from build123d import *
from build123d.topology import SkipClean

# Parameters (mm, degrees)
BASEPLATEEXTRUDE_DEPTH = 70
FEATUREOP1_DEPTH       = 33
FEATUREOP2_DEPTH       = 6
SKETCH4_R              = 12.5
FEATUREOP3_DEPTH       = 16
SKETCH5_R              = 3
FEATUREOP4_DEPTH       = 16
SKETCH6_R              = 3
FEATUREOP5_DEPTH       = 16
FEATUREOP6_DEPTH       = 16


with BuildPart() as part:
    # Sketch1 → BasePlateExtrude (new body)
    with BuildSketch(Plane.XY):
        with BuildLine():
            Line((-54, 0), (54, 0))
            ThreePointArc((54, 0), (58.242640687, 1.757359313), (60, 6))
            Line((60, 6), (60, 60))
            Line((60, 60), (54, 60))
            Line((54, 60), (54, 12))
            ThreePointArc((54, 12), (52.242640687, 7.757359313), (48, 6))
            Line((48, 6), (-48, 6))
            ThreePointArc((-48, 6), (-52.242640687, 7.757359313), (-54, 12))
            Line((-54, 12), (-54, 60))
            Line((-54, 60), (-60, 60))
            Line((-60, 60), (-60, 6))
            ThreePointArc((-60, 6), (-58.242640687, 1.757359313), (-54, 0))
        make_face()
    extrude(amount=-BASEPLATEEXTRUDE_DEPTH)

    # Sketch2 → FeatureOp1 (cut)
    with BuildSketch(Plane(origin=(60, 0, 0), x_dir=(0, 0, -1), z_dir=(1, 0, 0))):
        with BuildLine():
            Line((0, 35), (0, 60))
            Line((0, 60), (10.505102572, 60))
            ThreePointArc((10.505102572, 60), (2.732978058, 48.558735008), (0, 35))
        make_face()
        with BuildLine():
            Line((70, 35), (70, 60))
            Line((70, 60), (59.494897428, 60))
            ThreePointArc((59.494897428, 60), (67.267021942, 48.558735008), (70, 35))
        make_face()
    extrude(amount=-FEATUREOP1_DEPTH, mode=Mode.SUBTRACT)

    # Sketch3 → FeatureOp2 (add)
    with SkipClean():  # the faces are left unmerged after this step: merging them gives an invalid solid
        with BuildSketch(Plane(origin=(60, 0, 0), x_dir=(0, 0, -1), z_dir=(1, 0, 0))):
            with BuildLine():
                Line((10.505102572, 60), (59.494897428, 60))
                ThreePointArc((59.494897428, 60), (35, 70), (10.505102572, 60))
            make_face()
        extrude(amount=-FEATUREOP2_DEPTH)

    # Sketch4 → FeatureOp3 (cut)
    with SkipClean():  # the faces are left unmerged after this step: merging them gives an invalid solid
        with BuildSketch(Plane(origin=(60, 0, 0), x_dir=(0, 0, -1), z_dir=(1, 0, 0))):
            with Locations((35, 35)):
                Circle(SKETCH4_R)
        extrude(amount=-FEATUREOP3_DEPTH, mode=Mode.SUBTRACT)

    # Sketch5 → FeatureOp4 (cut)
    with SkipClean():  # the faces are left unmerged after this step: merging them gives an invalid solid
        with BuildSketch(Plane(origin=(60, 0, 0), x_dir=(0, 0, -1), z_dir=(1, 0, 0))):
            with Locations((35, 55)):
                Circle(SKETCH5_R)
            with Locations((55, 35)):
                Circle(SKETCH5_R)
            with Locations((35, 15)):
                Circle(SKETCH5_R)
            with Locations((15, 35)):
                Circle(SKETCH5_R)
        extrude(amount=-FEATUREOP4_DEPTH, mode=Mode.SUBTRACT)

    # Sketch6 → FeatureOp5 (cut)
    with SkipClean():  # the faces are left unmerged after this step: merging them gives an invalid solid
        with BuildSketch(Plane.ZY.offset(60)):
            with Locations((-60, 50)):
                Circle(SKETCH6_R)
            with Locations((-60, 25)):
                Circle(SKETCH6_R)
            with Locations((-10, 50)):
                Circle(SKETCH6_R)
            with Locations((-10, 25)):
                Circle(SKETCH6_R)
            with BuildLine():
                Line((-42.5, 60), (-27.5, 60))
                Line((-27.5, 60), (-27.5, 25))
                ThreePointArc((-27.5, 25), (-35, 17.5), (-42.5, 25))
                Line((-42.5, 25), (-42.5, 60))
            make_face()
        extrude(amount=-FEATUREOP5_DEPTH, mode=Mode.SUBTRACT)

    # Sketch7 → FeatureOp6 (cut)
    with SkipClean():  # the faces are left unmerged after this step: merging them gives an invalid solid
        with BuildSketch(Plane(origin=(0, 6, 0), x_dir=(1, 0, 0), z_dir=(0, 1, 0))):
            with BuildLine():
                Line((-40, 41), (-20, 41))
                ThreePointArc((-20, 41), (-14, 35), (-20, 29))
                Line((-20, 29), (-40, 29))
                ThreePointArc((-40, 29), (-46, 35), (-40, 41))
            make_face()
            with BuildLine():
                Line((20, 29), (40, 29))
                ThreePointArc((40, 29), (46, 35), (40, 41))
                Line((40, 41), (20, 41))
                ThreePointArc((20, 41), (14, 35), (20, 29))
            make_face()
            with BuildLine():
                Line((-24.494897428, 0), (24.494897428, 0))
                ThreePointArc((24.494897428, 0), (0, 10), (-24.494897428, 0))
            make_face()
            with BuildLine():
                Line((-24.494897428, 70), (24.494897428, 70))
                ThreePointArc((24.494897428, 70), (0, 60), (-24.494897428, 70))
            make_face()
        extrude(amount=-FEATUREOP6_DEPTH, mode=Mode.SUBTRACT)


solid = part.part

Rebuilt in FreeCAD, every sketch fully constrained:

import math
import FreeCAD as App
import Part
import Sketcher
Q = App.Units.Quantity

doc = App.newDocument("Part")
params = doc.addObject("Spreadsheet::Sheet", "Params")
for row, (alias, value) in enumerate([
    ("sketch1_radius", "6 mm"),
    ("sketch1_width", "108 mm"),
    ("sketch1_height", "54 mm"),
    ("pad1_length", "70 mm"),
    ("sketch2_radius", "35 mm"),
    ("sketch2_width", "25 mm"),
    ("pocket1_length", "33 mm"),
    ("sketch3_radius", "35 mm"),
    ("pad2_length", "6 mm"),
    ("sketch4_diameter", "25 mm"),
    ("pocket2_length", "16 mm"),
    ("sketch5_diameter", "6 mm"),
    ("pocket3_length", "16 mm"),
    ("sketch6_diameter", "6 mm"),
    ("sketch6_radius", "7.5 mm"),
    ("sketch6_width", "35 mm"),
    ("pocket4_length", "16 mm"),
    ("sketch7_radius", "6 mm"),
    ("sketch7_radius2", "35 mm"),
    ("sketch7_width", "20 mm"),
    ("pocket5_length", "16 mm"),
], start=1):
    params.set(f"A{row}", alias)
    params.set(f"B{row}", "=" + value)
    params.setAlias(f"B{row}", alias)

body = doc.addObject("PartDesign::Body", "Body")

sketch1 = body.newObject("Sketcher::SketchObject", "Sketch")
sketch1.AttachmentSupport = (doc.getObject("XY_Plane"), [""])
sketch1.MapMode = "FlatFace"
sketch1.addGeometry([
    Part.LineSegment(App.Vector(-54, 0, 0), App.Vector(54, 0, 0)),
    Part.ArcOfCircle(Part.Circle(App.Vector(54, 6, 0), App.Vector(0, 0, 1), 6), math.radians(-90), math.radians(0)),
    Part.LineSegment(App.Vector(60, 6, 0), App.Vector(60, 60, 0)),
    Part.LineSegment(App.Vector(60, 60, 0), App.Vector(54, 60, 0)),
    Part.LineSegment(App.Vector(54, 60, 0), App.Vector(54, 12, 0)),
    Part.ArcOfCircle(Part.Circle(App.Vector(48, 12, 0), App.Vector(0, 0, 1), 6), math.radians(-90), math.radians(0)),
    Part.LineSegment(App.Vector(48, 6, 0), App.Vector(-48, 6, 0)),
    Part.ArcOfCircle(Part.Circle(App.Vector(-48, 12, 0), App.Vector(0, 0, 1), 6), math.radians(180), math.radians(270)),
    Part.LineSegment(App.Vector(-54, 12, 0), App.Vector(-54, 60, 0)),
    Part.LineSegment(App.Vector(-54, 60, 0), App.Vector(-60, 60, 0)),
    Part.LineSegment(App.Vector(-60, 60, 0), App.Vector(-60, 6, 0)),
    Part.ArcOfCircle(Part.Circle(App.Vector(-54, 6, 0), App.Vector(0, 0, 1), 6), math.radians(180), math.radians(270)),
], False)
sketch1.addConstraint([
    Sketcher.Constraint("Tangent", 0, 2, 1, 1),
    Sketcher.Constraint("Tangent", 1, 2, 2, 1),
    Sketcher.Constraint("Coincident", 2, 2, 3, 1),
    Sketcher.Constraint("Coincident", 3, 2, 4, 1),
    Sketcher.Constraint("Tangent", 4, 2, 5, 2),
    Sketcher.Constraint("Tangent", 5, 1, 6, 1),
    Sketcher.Constraint("Tangent", 6, 2, 7, 2),
    Sketcher.Constraint("Tangent", 7, 1, 8, 1),
    Sketcher.Constraint("Coincident", 8, 2, 9, 1),
    Sketcher.Constraint("Coincident", 9, 2, 10, 1),
    Sketcher.Constraint("Tangent", 10, 2, 11, 1),
    Sketcher.Constraint("Tangent", 11, 2, 0, 1),
    Sketcher.Constraint("Horizontal", 0),
    Sketcher.Constraint("Vertical", 2),
    Sketcher.Constraint("Horizontal", 3),
    Sketcher.Constraint("Vertical", 4),
    Sketcher.Constraint("Horizontal", 6),
    Sketcher.Constraint("Vertical", 8),
    Sketcher.Constraint("Horizontal", 9),
    Sketcher.Constraint("Vertical", 10),
    Sketcher.Constraint("Equal", 1, 5),
    Sketcher.Constraint("Equal", 5, 7),
    Sketcher.Constraint("Equal", 7, 11),
    Sketcher.Constraint("Symmetric", 0, 2, 11, 2, -1, 1),
    Sketcher.Constraint("Symmetric", 3, 2, 8, 2, -2),
    Sketcher.Constraint("Horizontal", 1, 2, 5, 1),
    Sketcher.Constraint("Vertical", 0, 2, 3, 2),
    Sketcher.Constraint("Radius", 1, Q("6 mm")),
    Sketcher.Constraint("DistanceX", 0, 1, 0, 2, Q("108 mm")),
    Sketcher.Constraint("DistanceY", 2, 1, 2, 2, Q("54 mm")),
])
sketch1.setExpression("Constraints[27]", "Params.sketch1_radius")
sketch1.setExpression("Constraints[28]", "Params.sketch1_width")
sketch1.setExpression("Constraints[29]", "Params.sketch1_height")
pad1 = body.newObject("PartDesign::Pad", "Pad")
pad1.Profile = sketch1
pad1.setExpression("Length", "Params.pad1_length")
pad1.Reversed = True

sketch2 = body.newObject("Sketcher::SketchObject", "Sketch001")
sketch2.AttachmentSupport = (doc.getObject("YZ_Plane"), [""])
sketch2.MapMode = "FlatFace"
sketch2.AttachmentOffset = App.Placement(App.Vector(0, 0, 60), App.Rotation())
sketch2.addGeometry([
    Part.LineSegment(App.Vector(60, 0, 0), App.Vector(35, 0, 0)),
    Part.ArcOfCircle(Part.Circle(App.Vector(35, -35, 0), App.Vector(0, 0, 1), 35), math.radians(44), math.radians(90)),
    Part.LineSegment(App.Vector(60, -11, 0), App.Vector(60, 0, 0)),
    Part.LineSegment(App.Vector(35, -70, 0), App.Vector(60, -70, 0)),
    Part.LineSegment(App.Vector(60, -70, 0), App.Vector(60, -59, 0)),
    Part.ArcOfCircle(Part.Circle(App.Vector(35, -35, 0), App.Vector(0, 0, 1), 35), math.radians(-90), math.radians(-44)),
], False)
sketch2.addConstraint([
    Sketcher.Constraint("Tangent", 0, 2, 1, 2),
    Sketcher.Constraint("Coincident", 1, 1, 2, 1),
    Sketcher.Constraint("Coincident", 2, 2, 0, 1),
    Sketcher.Constraint("Coincident", 3, 2, 4, 1),
    Sketcher.Constraint("Coincident", 4, 2, 5, 2),
    Sketcher.Constraint("Tangent", 5, 1, 3, 1),
    Sketcher.Constraint("Horizontal", 0),
    Sketcher.Constraint("Vertical", 2),
    Sketcher.Constraint("Horizontal", 3),
    Sketcher.Constraint("Vertical", 4),
    Sketcher.Constraint("Coincident", 5, 3, 1, 3),
    Sketcher.Constraint("Equal", 1, 5),
    Sketcher.Constraint("PointOnObject", 0, 2, -1),
    Sketcher.Constraint("Vertical", 2, 2, 3, 2),
    Sketcher.Constraint("Radius", 1, Q("35 mm")),
    Sketcher.Constraint("DistanceX", 0, 2, 0, 1, Q("25 mm")),
    Sketcher.Constraint("DistanceX", -1, 1, 1, 3, Q("35 mm")),
])
sketch2.setExpression("Constraints[14]", "Params.sketch2_radius")
sketch2.setExpression("Constraints[15]", "Params.sketch2_width")
pocket1 = body.newObject("PartDesign::Pocket", "Pocket")
pocket1.Profile = sketch2
pocket1.setExpression("Length", "Params.pocket1_length")

sketch3 = body.newObject("Sketcher::SketchObject", "Sketch002")
sketch3.AttachmentSupport = (doc.getObject("YZ_Plane"), [""])
sketch3.MapMode = "FlatFace"
sketch3.AttachmentOffset = App.Placement(App.Vector(0, 0, 60), App.Rotation())
sketch3.addGeometry([
    Part.LineSegment(App.Vector(60, -11, 0), App.Vector(60, -59, 0)),
    Part.ArcOfCircle(Part.Circle(App.Vector(35, -35, 0), App.Vector(0, 0, 1), 35), math.radians(-44), math.radians(44)),
], False)
sketch3.addConstraint([
    Sketcher.Constraint("Coincident", 0, 1, 1, 2),
    Sketcher.Constraint("Coincident", 1, 1, 0, 2),
    Sketcher.Constraint("Vertical", 0),
    Sketcher.Constraint("Radius", 1, Q("35 mm")),
    Sketcher.Constraint("DistanceX", -1, 1, 1, 3, Q("35 mm")),
    Sketcher.Constraint("DistanceY", 1, 3, -1, 1, Q("35 mm")),
    Sketcher.Constraint("DistanceX", -1, 1, 0, 1, Q("60 mm")),
])
sketch3.setExpression("Constraints[3]", "Params.sketch3_radius")
pad2 = body.newObject("PartDesign::Pad", "Pad001")
pad2.Profile = sketch3
pad2.setExpression("Length", "Params.pad2_length")
pad2.Reversed = True

sketch4 = body.newObject("Sketcher::SketchObject", "Sketch003")
sketch4.AttachmentSupport = (doc.getObject("YZ_Plane"), [""])
sketch4.MapMode = "FlatFace"
sketch4.AttachmentOffset = App.Placement(App.Vector(0, 0, 60), App.Rotation())
sketch4.addGeometry(Part.Circle(App.Vector(35, -35, 0), App.Vector(0, 0, 1), 12), False)
sketch4.addConstraint([
    Sketcher.Constraint("Diameter", 0, Q("25 mm")),
    Sketcher.Constraint("DistanceX", -1, 1, 0, 3, Q("35 mm")),
    Sketcher.Constraint("DistanceY", 0, 3, -1, 1, Q("35 mm")),
])
sketch4.setExpression("Constraints[0]", "Params.sketch4_diameter")
pocket2 = body.newObject("PartDesign::Pocket", "Pocket001")
pocket2.Profile = sketch4
pocket2.setExpression("Length", "Params.pocket2_length")

sketch5 = body.newObject("Sketcher::SketchObject", "Sketch004")
sketch5.AttachmentSupport = (doc.getObject("YZ_Plane"), [""])
sketch5.MapMode = "FlatFace"
sketch5.AttachmentOffset = App.Placement(App.Vector(0, 0, 60), App.Rotation())
sketch5.addGeometry([
    Part.Circle(App.Vector(55, -35, 0), App.Vector(0, 0, 1), 3),
    Part.Circle(App.Vector(35, -55, 0), App.Vector(0, 0, 1), 3),
    Part.Circle(App.Vector(15, -35, 0), App.Vector(0, 0, 1), 3),
    Part.Circle(App.Vector(35, -15, 0), App.Vector(0, 0, 1), 3),
], False)
sketch5.addConstraint([
    Sketcher.Constraint("Equal", 0, 1),
    Sketcher.Constraint("Equal", 1, 2),
    Sketcher.Constraint("Equal", 2, 3),
    Sketcher.Constraint("Horizontal", 0, 3, 2, 3),
    Sketcher.Constraint("Vertical", 1, 3, 3, 3),
    Sketcher.Constraint("Diameter", 0, Q("6 mm")),
    Sketcher.Constraint("DistanceX", -1, 1, 0, 3, Q("55 mm")),
    Sketcher.Constraint("DistanceY", 0, 3, -1, 1, Q("35 mm")),
    Sketcher.Constraint("DistanceX", -1, 1, 1, 3, Q("35 mm")),
    Sketcher.Constraint("DistanceY", 1, 3, -1, 1, Q("55 mm")),
    Sketcher.Constraint("DistanceX", -1, 1, 2, 3, Q("15 mm")),
    Sketcher.Constraint("DistanceY", 3, 3, -1, 1, Q("15 mm")),
])
sketch5.setExpression("Constraints[5]", "Params.sketch5_diameter")
pocket3 = body.newObject("PartDesign::Pocket", "Pocket002")
pocket3.Profile = sketch5
pocket3.setExpression("Length", "Params.pocket3_length")

sketch6 = body.newObject("Sketcher::SketchObject", "Sketch005")
sketch6.AttachmentSupport = (doc.getObject("YZ_Plane"), [""])
sketch6.MapMode = "FlatFace"
sketch6.AttachmentOffset = App.Placement(App.Vector(0, 0, -60), App.Rotation())
sketch6.addGeometry([
    Part.Circle(App.Vector(50, -60, 0), App.Vector(0, 0, 1), 3),
    Part.Circle(App.Vector(25, -60, 0), App.Vector(0, 0, 1), 3),
    Part.Circle(App.Vector(50, -10, 0), App.Vector(0, 0, 1), 3),
    Part.Circle(App.Vector(25, -10, 0), App.Vector(0, 0, 1), 3),
    Part.LineSegment(App.Vector(60, -27.5, 0), App.Vector(60, -42.5, 0)),
    Part.LineSegment(App.Vector(60, -42.5, 0), App.Vector(25, -42.5, 0)),
    Part.ArcOfCircle(Part.Circle(App.Vector(25, -35, 0), App.Vector(0, 0, 1), 7.5), math.radians(90), math.radians(270)),
    Part.LineSegment(App.Vector(25, -27.5, 0), App.Vector(60, -27.5, 0)),
], False)
sketch6.addConstraint([
    Sketcher.Constraint("Coincident", 4, 2, 5, 1),
    Sketcher.Constraint("Tangent", 5, 2, 6, 2),
    Sketcher.Constraint("Tangent", 6, 1, 7, 1),
    Sketcher.Constraint("Coincident", 7, 2, 4, 1),
    Sketcher.Constraint("Vertical", 4),
    Sketcher.Constraint("Horizontal", 5),
    Sketcher.Constraint("Horizontal", 7),
    Sketcher.Constraint("Equal", 0, 1),
    Sketcher.Constraint("Equal", 1, 2),
    Sketcher.Constraint("Equal", 2, 3),
    Sketcher.Constraint("Horizontal", 0, 3, 1, 3),
    Sketcher.Constraint("Horizontal", 2, 3, 3, 3),
    Sketcher.Constraint("Vertical", 0, 3, 2, 3),
    Sketcher.Constraint("Vertical", 1, 3, 3, 3),
    Sketcher.Constraint("Vertical", 3, 3, 6, 3),
    Sketcher.Constraint("Diameter", 0, Q("6 mm")),
    Sketcher.Constraint("Radius", 6, Q("7.5 mm")),
    Sketcher.Constraint("DistanceX", 5, 2, 5, 1, Q("35 mm")),
    Sketcher.Constraint("DistanceX", -1, 1, 0, 3, Q("50 mm")),
    Sketcher.Constraint("DistanceY", 0, 3, -1, 1, Q("60 mm")),
    Sketcher.Constraint("DistanceX", -1, 1, 1, 3, Q("25 mm")),
    Sketcher.Constraint("DistanceY", 2, 3, -1, 1, Q("10 mm")),
    Sketcher.Constraint("DistanceY", 6, 3, -1, 1, Q("35 mm")),
])
sketch6.setExpression("Constraints[15]", "Params.sketch6_diameter")
sketch6.setExpression("Constraints[16]", "Params.sketch6_radius")
sketch6.setExpression("Constraints[17]", "Params.sketch6_width")
pocket4 = body.newObject("PartDesign::Pocket", "Pocket003")
pocket4.Profile = sketch6
pocket4.setExpression("Length", "Params.pocket4_length")
pocket4.Reversed = True

sketch7 = body.newObject("Sketcher::SketchObject", "Sketch006")
sketch7.AttachmentSupport = (doc.getObject("XZ_Plane"), [""])
sketch7.MapMode = "FlatFace"
sketch7.AttachmentOffset = App.Placement(App.Vector(0, 0, -6), App.Rotation())
sketch7.addGeometry([
    Part.LineSegment(App.Vector(-20, -41, 0), App.Vector(-40, -41, 0)),
    Part.ArcOfCircle(Part.Circle(App.Vector(-40, -35, 0), App.Vector(0, 0, 1), 6), math.radians(90), math.radians(270)),
    Part.LineSegment(App.Vector(-40, -29, 0), App.Vector(-20, -29, 0)),
    Part.ArcOfCircle(Part.Circle(App.Vector(-20, -35, 0), App.Vector(0, 0, 1), 6), math.radians(-90), math.radians(90)),
    Part.LineSegment(App.Vector(20, -29, 0), App.Vector(40, -29, 0)),
    Part.ArcOfCircle(Part.Circle(App.Vector(40, -35, 0), App.Vector(0, 0, 1), 6), math.radians(-90), math.radians(90)),
    Part.LineSegment(App.Vector(40, -41, 0), App.Vector(20, -41, 0)),
    Part.ArcOfCircle(Part.Circle(App.Vector(20, -35, 0), App.Vector(0, 0, 1), 6), math.radians(90), math.radians(270)),
    Part.LineSegment(App.Vector(-24, 0, 0), App.Vector(24, 0, 0)),
    Part.ArcOfCircle(Part.Circle(App.Vector(0, 25, 0), App.Vector(0, 0, 1), 35), math.radians(-134), math.radians(-46)),
    Part.LineSegment(App.Vector(24, -70, 0), App.Vector(-24, -70, 0)),
    Part.ArcOfCircle(Part.Circle(App.Vector(0, -95, 0), App.Vector(0, 0, 1), 35), math.radians(46), math.radians(134)),
], False)
sketch7.addConstraint([
    Sketcher.Constraint("Tangent", 0, 2, 1, 2),
    Sketcher.Constraint("Tangent", 1, 1, 2, 1),
    Sketcher.Constraint("Tangent", 2, 2, 3, 2),
    Sketcher.Constraint("Tangent", 3, 1, 0, 1),
    Sketcher.Constraint("Tangent", 4, 2, 5, 2),
    Sketcher.Constraint("Tangent", 5, 1, 6, 1),
    Sketcher.Constraint("Tangent", 6, 2, 7, 2),
    Sketcher.Constraint("Tangent", 7, 1, 4, 1),
    Sketcher.Constraint("Coincident", 8, 1, 9, 1),
    Sketcher.Constraint("Coincident", 9, 2, 8, 2),
    Sketcher.Constraint("Coincident", 10, 1, 11, 1),
    Sketcher.Constraint("Coincident", 11, 2, 10, 2),
    Sketcher.Constraint("Horizontal", 0),
    Sketcher.Constraint("Horizontal", 2),
    Sketcher.Constraint("Horizontal", 4),
    Sketcher.Constraint("Horizontal", 6),
    Sketcher.Constraint("Horizontal", 8),
    Sketcher.Constraint("Horizontal", 10),
    Sketcher.Constraint("Equal", 3, 5),
    Sketcher.Constraint("Equal", 9, 11),
    Sketcher.Constraint("Symmetric", 8, 1, 9, 2, -1, 1),
    Sketcher.Constraint("Symmetric", 1, 3, 5, 3, -2),
    Sketcher.Constraint("PointOnObject", 11, 3, -2),
    Sketcher.Constraint("Vertical", 9, 2, 10, 1),
    Sketcher.Constraint("Equal", 2, 4),
    Sketcher.Constraint("Radius", 1, Q("6 mm")),
    Sketcher.Constraint("Radius", 9, Q("35 mm")),
    Sketcher.Constraint("DistanceX", 0, 2, 0, 1, Q("20 mm")),
    Sketcher.Constraint("DistanceX", 1, 3, -1, 1, Q("40 mm")),
    Sketcher.Constraint("DistanceY", 1, 3, -1, 1, Q("35 mm")),
    Sketcher.Constraint("DistanceY", -1, 1, 9, 3, Q("25 mm")),
    Sketcher.Constraint("DistanceY", 11, 3, -1, 1, Q("95 mm")),
])
sketch7.setExpression("Constraints[25]", "Params.sketch7_radius")
sketch7.setExpression("Constraints[26]", "Params.sketch7_radius2")
sketch7.setExpression("Constraints[27]", "Params.sketch7_width")
pocket5 = body.newObject("PartDesign::Pocket", "Pocket004")
pocket5.Profile = sketch7
pocket5.setExpression("Length", "Params.pocket5_length")
pocket5.Reversed = True

doc.recompute()
